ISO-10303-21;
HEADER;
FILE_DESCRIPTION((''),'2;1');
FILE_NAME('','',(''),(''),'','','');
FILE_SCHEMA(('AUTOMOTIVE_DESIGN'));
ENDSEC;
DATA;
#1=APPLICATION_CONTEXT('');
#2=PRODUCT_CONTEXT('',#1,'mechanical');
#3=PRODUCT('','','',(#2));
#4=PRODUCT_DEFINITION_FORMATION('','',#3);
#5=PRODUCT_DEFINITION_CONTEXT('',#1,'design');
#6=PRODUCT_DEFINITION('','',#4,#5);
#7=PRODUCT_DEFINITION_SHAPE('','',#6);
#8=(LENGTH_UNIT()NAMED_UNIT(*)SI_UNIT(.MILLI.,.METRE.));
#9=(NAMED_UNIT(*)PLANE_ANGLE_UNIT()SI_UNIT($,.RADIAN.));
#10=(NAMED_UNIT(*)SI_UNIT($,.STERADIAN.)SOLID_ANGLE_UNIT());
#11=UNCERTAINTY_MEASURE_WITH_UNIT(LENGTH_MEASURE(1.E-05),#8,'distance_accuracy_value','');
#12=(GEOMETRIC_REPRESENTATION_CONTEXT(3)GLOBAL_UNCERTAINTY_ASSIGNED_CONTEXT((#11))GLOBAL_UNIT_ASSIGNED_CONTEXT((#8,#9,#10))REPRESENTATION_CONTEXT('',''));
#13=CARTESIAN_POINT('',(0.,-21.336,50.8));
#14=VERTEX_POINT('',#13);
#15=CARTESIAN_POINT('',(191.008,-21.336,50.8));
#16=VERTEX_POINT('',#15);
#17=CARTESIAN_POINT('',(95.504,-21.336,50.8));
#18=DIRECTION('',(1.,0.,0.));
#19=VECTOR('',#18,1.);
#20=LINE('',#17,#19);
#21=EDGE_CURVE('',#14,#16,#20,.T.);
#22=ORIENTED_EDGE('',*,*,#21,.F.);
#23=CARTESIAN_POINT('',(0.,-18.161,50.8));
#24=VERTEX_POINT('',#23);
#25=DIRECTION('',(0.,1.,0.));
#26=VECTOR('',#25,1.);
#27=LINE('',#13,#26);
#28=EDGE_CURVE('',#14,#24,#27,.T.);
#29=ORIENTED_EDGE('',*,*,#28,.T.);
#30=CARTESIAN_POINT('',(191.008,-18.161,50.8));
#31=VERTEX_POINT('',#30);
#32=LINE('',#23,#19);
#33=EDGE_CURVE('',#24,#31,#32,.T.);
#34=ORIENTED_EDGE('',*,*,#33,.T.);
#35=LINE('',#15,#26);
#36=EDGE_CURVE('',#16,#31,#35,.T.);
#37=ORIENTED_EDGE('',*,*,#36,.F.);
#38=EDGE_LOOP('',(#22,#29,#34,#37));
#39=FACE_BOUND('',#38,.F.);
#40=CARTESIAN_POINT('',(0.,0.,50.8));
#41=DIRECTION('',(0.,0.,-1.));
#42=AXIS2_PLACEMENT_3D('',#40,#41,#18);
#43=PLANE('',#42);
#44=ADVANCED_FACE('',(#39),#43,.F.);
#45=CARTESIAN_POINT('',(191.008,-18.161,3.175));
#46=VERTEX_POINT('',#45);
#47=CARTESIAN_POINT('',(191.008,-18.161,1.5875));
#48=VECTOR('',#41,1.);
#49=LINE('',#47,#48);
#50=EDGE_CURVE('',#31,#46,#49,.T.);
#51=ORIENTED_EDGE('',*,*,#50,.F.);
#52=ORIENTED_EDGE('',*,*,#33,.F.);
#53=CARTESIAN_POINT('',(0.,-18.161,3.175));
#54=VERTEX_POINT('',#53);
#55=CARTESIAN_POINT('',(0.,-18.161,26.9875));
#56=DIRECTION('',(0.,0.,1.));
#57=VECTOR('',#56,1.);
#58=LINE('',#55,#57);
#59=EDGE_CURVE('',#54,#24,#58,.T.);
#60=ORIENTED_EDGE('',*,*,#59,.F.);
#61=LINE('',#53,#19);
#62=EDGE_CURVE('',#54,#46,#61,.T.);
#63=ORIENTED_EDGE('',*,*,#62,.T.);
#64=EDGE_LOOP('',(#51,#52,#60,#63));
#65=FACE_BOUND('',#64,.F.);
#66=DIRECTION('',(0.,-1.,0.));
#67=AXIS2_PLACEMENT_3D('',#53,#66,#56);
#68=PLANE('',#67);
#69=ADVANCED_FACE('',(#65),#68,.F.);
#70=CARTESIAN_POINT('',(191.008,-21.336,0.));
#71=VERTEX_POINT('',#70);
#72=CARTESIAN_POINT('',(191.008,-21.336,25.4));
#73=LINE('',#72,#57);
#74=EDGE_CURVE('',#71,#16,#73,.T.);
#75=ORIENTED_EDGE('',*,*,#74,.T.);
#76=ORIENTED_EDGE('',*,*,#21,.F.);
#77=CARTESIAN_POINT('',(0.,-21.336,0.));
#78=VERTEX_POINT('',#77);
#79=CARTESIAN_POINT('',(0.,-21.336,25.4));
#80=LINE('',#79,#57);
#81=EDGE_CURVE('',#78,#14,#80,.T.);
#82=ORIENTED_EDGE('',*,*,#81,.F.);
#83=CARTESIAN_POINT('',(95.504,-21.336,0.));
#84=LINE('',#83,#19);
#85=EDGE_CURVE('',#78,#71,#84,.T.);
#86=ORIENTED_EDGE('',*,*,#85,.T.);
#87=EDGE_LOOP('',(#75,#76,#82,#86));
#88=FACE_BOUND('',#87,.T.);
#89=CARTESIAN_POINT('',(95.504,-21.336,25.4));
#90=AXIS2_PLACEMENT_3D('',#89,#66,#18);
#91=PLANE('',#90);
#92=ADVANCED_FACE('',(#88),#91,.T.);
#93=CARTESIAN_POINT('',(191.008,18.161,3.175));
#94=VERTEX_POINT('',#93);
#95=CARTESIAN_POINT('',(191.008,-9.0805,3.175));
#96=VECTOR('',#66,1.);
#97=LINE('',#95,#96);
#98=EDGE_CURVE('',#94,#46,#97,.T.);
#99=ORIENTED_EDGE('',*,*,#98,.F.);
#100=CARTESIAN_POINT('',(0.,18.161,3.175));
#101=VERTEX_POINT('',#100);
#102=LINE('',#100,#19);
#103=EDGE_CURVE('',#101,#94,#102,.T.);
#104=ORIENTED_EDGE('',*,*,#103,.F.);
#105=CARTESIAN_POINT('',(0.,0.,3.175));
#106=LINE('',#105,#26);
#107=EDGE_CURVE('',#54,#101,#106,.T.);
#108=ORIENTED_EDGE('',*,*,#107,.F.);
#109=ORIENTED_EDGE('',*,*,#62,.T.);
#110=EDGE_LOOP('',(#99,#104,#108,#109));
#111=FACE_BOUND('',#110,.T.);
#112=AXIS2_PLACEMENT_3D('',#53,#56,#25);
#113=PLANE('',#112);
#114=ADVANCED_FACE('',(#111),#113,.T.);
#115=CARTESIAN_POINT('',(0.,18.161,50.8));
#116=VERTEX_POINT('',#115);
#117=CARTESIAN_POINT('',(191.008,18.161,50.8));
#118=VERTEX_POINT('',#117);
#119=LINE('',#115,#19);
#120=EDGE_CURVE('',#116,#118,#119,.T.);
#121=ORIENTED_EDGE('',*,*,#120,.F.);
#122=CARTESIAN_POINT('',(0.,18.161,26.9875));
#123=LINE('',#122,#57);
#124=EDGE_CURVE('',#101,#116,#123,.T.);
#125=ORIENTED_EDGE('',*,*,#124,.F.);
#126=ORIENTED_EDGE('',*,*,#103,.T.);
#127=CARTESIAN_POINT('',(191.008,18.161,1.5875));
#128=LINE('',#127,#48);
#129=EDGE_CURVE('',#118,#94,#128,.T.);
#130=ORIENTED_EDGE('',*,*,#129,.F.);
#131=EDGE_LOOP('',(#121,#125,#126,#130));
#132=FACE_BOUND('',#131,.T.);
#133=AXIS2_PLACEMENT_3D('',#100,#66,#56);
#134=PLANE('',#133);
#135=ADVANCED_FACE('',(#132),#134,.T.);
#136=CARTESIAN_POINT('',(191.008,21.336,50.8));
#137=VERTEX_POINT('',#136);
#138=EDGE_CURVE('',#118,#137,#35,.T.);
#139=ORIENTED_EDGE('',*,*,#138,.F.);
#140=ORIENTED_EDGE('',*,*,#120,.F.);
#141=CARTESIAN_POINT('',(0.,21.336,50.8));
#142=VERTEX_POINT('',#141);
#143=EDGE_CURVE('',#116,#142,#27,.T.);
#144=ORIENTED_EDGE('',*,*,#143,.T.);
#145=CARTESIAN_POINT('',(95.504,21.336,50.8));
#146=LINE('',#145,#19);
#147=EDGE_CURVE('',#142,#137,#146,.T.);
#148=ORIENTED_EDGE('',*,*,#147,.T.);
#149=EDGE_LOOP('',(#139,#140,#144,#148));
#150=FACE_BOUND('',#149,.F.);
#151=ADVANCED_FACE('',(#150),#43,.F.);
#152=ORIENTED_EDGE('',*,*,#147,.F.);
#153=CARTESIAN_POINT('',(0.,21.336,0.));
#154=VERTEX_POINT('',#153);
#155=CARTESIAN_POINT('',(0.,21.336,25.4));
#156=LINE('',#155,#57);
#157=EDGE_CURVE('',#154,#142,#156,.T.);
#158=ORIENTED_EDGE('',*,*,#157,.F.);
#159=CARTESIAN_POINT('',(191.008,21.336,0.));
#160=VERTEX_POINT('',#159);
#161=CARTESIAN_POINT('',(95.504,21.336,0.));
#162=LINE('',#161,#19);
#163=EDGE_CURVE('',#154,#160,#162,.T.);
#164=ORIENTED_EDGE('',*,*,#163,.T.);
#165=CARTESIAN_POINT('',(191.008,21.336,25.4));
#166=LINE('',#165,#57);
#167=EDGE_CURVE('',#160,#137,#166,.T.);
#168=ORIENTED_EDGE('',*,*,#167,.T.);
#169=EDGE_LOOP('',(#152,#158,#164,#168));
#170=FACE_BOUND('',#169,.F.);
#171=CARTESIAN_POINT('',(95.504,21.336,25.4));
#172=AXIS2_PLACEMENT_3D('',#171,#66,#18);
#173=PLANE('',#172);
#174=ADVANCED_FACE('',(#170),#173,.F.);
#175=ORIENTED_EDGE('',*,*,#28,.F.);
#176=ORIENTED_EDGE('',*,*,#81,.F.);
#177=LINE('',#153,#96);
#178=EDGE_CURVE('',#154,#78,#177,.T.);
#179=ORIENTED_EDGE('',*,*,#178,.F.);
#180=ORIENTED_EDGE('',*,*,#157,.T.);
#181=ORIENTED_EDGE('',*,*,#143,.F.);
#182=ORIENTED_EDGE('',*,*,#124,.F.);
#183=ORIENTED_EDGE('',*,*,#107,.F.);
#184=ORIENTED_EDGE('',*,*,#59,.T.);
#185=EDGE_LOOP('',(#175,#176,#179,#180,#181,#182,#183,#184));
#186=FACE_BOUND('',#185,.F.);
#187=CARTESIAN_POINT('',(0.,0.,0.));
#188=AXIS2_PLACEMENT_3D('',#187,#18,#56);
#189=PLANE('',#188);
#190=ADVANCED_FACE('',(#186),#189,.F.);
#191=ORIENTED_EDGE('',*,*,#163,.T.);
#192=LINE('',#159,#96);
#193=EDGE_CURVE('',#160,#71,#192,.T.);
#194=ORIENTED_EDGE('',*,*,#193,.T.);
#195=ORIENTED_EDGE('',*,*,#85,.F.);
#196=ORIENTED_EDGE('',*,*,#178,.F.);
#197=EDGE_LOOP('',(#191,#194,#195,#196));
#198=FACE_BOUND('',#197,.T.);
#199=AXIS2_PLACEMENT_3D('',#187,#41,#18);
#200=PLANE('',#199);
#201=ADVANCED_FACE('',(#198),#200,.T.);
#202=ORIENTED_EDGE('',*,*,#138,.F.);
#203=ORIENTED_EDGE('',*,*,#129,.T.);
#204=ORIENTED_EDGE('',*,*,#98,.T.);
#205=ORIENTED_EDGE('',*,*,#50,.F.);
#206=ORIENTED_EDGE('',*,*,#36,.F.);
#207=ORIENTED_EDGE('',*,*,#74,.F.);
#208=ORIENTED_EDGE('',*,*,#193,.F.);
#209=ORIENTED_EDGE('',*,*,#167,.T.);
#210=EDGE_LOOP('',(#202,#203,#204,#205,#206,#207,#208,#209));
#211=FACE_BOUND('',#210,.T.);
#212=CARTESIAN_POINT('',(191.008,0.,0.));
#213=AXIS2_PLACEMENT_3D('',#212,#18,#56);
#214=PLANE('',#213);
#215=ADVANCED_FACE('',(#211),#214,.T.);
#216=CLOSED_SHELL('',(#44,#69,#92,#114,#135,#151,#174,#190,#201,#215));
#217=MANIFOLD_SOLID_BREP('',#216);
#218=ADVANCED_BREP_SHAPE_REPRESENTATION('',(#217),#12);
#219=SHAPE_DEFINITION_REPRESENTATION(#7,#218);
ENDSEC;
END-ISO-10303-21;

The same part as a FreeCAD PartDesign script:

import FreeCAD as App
import Part
import Sketcher
Q = App.Units.Quantity

doc = App.newDocument("Part")
body = doc.addObject("PartDesign::Body", "Body")

sketch1 = doc.addObject("Sketcher::SketchObject", "Sketch")
body.addObject(sketch1)
sketch1.AttachmentSupport = (doc.XZ_Plane, [""])
sketch1.MapMode = "FlatFace"
sketch1.addGeometry([
    Part.LineSegment(App.Vector(0, 50.8, 0), App.Vector(0, 0, 0)),
    Part.LineSegment(App.Vector(0, 0, 0), App.Vector(191.008, 0, 0)),
    Part.LineSegment(App.Vector(191.008, 0, 0), App.Vector(191.008, 50.8, 0)),
    Part.LineSegment(App.Vector(191.008, 50.8, 0), App.Vector(0, 50.8, 0)),
], False)
sketch1.addConstraint([
    Sketcher.Constraint("Coincident", 0, 2, 1, 1),
    Sketcher.Constraint("Coincident", 1, 2, 2, 1),
    Sketcher.Constraint("Coincident", 2, 2, 3, 1),
    Sketcher.Constraint("Coincident", 3, 2, 0, 1),
    Sketcher.Constraint("Vertical", 0),
    Sketcher.Constraint("Horizontal", 1),
    Sketcher.Constraint("Vertical", 2),
    Sketcher.Constraint("Horizontal", 3),
    Sketcher.Constraint("Coincident", 0, 2, -1, 1),
    Sketcher.Constraint("DistanceY", 0, 2, 0, 1, Q("2 in")),
    Sketcher.Constraint("DistanceX", 1, 1, 1, 2, Q("7.52 in")),
])
pad1 = doc.addObject("PartDesign::Pad", "Pad")
body.addObject(pad1)
pad1.Profile = sketch1
pad1.Length = Q("1.68 in")
pad1.Midplane = True

sketch2 = doc.addObject("Sketcher::SketchObject", "Sketch001")
body.addObject(sketch2)
sketch2.AttachmentSupport = (doc.YZ_Plane, [""])
sketch2.MapMode = "FlatFace"
sketch2.addGeometry([
    Part.LineSegment(App.Vector(-18.161, 50.8, 0), App.Vector(-18.161, 3.175, 0)),
    Part.LineSegment(App.Vector(-18.161, 3.175, 0), App.Vector(18.161, 3.175, 0)),
    Part.LineSegment(App.Vector(18.161, 3.175, 0), App.Vector(18.161, 50.8, 0)),
    Part.LineSegment(App.Vector(18.161, 50.8, 0), App.Vector(-18.161, 50.8, 0)),
], False)
sketch2.addConstraint([
    Sketcher.Constraint("Coincident", 0, 2, 1, 1),
    Sketcher.Constraint("Coincident", 1, 2, 2, 1),
    Sketcher.Constraint("Coincident", 2, 2, 3, 1),
    Sketcher.Constraint("Coincident", 3, 2, 0, 1),
    Sketcher.Constraint("Vertical", 0),
    Sketcher.Constraint("Horizontal", 1),
    Sketcher.Constraint("Vertical", 2),
    Sketcher.Constraint("Horizontal", 3),
    Sketcher.Constraint("DistanceY", -1, 1, 2, 2, Q("2 in")),
    Sketcher.Constraint("DistanceX", 1, 1, 1, 2, Q("1.43 in")),
    Sketcher.Constraint("DistanceY", 0, 2, 0, 1, Q("1.875 in")),
    Sketcher.Constraint("DistanceX", 0, 2, -1, 1, Q("0.715 in")),
])
pocket1 = doc.addObject("PartDesign::Pocket", "Pocket")
body.addObject(pocket1)
pocket1.Profile = sketch2
pocket1.Type = "ThroughAll"
pocket1.Reversed = True

doc.recompute()
